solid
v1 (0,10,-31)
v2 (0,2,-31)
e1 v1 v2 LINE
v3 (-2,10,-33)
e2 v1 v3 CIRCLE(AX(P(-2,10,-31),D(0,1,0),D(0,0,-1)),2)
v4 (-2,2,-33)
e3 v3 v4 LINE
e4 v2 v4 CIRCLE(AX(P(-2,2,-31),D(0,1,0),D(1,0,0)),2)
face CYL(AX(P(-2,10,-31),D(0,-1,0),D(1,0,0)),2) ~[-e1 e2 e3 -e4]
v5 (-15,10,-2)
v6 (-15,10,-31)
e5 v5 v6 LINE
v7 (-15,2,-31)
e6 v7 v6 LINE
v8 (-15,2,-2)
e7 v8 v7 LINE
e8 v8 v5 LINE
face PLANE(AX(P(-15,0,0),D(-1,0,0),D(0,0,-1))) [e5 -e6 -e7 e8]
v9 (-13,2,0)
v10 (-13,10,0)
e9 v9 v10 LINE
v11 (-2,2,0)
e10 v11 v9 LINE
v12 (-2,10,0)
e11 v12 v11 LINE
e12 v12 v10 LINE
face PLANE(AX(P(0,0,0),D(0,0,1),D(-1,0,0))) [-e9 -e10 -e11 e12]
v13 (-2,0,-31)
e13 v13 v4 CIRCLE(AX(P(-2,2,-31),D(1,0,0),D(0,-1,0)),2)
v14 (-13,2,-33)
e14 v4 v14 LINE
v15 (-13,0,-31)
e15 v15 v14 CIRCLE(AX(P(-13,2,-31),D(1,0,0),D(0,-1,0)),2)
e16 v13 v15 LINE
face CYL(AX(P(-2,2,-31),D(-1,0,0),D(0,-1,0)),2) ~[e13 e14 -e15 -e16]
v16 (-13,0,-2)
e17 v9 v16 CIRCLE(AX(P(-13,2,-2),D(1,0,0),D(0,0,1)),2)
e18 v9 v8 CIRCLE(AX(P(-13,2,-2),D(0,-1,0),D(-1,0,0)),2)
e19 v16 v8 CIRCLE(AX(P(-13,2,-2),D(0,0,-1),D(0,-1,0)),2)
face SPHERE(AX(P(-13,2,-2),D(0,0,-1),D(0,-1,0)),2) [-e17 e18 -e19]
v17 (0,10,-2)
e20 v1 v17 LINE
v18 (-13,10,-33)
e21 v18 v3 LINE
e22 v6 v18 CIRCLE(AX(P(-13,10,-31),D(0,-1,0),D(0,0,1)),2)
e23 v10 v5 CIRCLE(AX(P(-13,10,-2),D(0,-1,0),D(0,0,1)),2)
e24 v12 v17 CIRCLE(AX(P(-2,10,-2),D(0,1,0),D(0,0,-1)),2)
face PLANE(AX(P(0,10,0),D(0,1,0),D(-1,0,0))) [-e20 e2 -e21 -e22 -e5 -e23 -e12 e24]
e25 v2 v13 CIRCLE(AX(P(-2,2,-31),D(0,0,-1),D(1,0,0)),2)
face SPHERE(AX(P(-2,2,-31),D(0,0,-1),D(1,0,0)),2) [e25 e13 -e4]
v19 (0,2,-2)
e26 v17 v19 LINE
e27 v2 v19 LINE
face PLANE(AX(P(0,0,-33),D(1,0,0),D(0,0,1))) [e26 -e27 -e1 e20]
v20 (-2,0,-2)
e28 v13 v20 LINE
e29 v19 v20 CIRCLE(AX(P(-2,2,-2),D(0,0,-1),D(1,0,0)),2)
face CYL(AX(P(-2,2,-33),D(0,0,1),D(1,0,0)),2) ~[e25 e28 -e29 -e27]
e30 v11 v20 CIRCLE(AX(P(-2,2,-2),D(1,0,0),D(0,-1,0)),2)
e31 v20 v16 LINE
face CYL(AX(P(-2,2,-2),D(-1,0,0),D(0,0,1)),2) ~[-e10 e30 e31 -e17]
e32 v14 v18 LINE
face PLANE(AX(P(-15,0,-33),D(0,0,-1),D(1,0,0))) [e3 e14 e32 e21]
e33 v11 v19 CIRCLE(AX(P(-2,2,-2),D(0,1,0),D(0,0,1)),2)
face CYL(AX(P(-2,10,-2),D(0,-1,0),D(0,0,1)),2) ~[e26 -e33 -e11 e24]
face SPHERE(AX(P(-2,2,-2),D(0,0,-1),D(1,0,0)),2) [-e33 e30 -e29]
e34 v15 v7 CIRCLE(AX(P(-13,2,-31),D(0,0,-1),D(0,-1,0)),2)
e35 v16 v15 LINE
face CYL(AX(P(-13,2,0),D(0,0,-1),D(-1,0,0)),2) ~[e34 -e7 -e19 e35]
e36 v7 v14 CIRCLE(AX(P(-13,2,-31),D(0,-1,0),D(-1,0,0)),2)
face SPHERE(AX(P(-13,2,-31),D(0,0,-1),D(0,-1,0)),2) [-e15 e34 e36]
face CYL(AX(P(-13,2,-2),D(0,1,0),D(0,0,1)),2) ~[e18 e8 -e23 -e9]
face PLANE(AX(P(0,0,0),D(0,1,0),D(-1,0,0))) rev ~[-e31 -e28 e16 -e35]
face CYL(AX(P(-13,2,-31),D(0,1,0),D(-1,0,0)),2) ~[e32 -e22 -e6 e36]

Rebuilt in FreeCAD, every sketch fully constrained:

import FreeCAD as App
import Part
import Sketcher

V = App.Vector
Q = App.Units.Quantity


def edges_at(feature, points):
    """Names of the edges that pass closest to the given points."""
    edges = feature.Shape.Edges
    near = lambda p: min(range(len(edges)), key=lambda i: edges[i].distToShape(Part.Vertex(*p))[0])
    return sorted({f"Edge{near(p) + 1}" for p in points})

doc = App.newDocument("Part")
body = doc.addObject("PartDesign::Body", "Body")

sketch1 = body.newObject("Sketcher::SketchObject", "Sketch")
sketch1.AttachmentSupport = (doc.getObject("XZ_Plane"), [""])
sketch1.MapMode = "FlatFace"
sketch1.addGeometry(Part.LineSegment(V(-15, 0, 0), V(0, 0, 0)), False)
sketch1.addGeometry(Part.LineSegment(V(0, 0, 0), V(0, -33, 0)), False)
sketch1.addGeometry(Part.LineSegment(V(0, -33, 0), V(-15, -33, 0)), False)
sketch1.addGeometry(Part.LineSegment(V(-15, -33, 0), V(-15, 0, 0)), False)
sketch1.addConstraint(Sketcher.Constraint("Coincident", 0, 2, 1, 1))
sketch1.addConstraint(Sketcher.Constraint("Coincident", 1, 2, 2, 1))
sketch1.addConstraint(Sketcher.Constraint("Coincident", 2, 2, 3, 1))
sketch1.addConstraint(Sketcher.Constraint("Coincident", 3, 2, 0, 1))
sketch1.addConstraint(Sketcher.Constraint("Horizontal", 0))
sketch1.addConstraint(Sketcher.Constraint("Vertical", 1))
sketch1.addConstraint(Sketcher.Constraint("Horizontal", 2))
sketch1.addConstraint(Sketcher.Constraint("Vertical", 3))
sketch1.addConstraint(Sketcher.Constraint("Coincident", 0, 2, -1, 1))
sketch1.addConstraint(Sketcher.Constraint("DistanceX", 0, 1, 0, 2, Q("15 mm")))
sketch1.addConstraint(Sketcher.Constraint("DistanceY", 1, 2, 1, 1, Q("33 mm")))
pad1 = body.newObject("PartDesign::Pad", "Pad")
pad1.Profile = sketch1
pad1.Length = 10
pad1.Reversed = True
doc.recompute()

fillet = body.newObject("PartDesign::Fillet", "Fillet")
fillet.Base = (pad1, edges_at(pad1, [(0, 0, -16.5), (-15, 0, -16.5)]))
fillet.Radius = 2
doc.recompute()

fillet2 = body.newObject("PartDesign::Fillet", "Fillet001")
fillet2.Base = (fillet, edges_at(fillet, [
    (-0.586, 0.586, -33),
    (-7.5, 0, -33),
    (-14.414, 0.586, -33),
    (-15, 6, -33),
    (0, 6, -33),
    (-0.586, 0.586, 0),
    (-7.5, 0, 0),
    (-14.414, 0.586, 0),
    (-15, 6, 0),
    (0, 6, 0),
]))
fillet2.Radius = 2

doc.recompute()
